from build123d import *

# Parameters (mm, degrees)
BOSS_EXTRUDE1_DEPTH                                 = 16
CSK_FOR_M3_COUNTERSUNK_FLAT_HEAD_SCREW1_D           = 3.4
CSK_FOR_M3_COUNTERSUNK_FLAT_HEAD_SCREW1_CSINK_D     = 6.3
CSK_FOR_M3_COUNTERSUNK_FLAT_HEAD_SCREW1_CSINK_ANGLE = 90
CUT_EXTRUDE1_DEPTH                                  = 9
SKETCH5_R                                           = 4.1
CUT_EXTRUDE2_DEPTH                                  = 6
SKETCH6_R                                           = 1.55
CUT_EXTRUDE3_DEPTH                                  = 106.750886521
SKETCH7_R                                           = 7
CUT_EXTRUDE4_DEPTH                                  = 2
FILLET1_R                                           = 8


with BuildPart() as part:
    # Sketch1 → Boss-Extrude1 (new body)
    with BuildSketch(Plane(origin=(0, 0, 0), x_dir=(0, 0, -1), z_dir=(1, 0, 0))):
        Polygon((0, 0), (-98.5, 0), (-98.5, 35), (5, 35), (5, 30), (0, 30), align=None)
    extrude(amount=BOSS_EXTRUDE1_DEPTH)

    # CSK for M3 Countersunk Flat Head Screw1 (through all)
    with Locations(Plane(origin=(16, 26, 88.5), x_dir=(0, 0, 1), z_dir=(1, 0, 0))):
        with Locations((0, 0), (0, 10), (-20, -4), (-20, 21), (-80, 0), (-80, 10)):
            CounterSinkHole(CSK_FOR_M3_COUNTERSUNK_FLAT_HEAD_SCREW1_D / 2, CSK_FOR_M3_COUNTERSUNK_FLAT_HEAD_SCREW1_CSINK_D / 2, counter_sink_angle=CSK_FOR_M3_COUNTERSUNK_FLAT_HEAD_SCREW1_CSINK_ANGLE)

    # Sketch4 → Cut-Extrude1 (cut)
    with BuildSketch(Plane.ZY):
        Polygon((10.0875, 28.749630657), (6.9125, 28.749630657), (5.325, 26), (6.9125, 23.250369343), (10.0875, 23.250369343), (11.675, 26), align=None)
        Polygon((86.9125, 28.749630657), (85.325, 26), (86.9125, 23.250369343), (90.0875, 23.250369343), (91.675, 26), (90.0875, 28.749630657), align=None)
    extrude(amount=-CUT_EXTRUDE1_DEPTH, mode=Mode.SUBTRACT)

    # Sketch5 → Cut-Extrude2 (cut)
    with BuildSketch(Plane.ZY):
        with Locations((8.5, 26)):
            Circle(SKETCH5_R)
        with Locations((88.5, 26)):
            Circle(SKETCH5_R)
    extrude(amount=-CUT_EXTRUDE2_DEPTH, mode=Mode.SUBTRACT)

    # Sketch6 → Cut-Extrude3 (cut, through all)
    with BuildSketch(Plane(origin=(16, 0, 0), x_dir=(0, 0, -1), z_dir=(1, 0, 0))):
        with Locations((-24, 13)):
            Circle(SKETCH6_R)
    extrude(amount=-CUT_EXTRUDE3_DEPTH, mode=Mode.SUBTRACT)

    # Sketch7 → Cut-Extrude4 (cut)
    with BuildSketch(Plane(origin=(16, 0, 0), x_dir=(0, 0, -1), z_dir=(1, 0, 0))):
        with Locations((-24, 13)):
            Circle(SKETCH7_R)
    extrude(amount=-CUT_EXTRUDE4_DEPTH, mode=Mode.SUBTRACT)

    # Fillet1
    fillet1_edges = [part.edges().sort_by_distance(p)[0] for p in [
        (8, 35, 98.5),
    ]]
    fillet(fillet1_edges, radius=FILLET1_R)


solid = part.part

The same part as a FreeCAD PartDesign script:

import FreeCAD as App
import Part
import Sketcher
from FreeCAD import Vector
Q = App.Units.Quantity


def edges_at(feature, points):
    """Names of the edges that pass closest to the given points."""
    edges = feature.Shape.Edges
    near = lambda p: min(range(len(edges)), key=lambda i: edges[i].distToShape(Part.Vertex(*p))[0])
    return sorted({f"Edge{near(p) + 1}" for p in points})


def add_polygon(sketch, points):
    """Adds a closed chain of lines whose ends are joined by coincident constraints."""
    first, n = sketch.GeometryCount, len(points)
    for a, b in zip(points, points[1:] + points[:1]):
        sketch.addGeometry(Part.LineSegment(App.Vector(*a, 0), App.Vector(*b, 0)), False)
    for i in range(n):
        sketch.addConstraint(Sketcher.Constraint("Coincident", first + i, 2, first + (i + 1) % n, 1))

doc = App.newDocument("Part")
body = doc.addObject("PartDesign::Body", "Body")

sketch1 = body.newObject("Sketcher::SketchObject", "Sketch")
sketch1.AttachmentSupport = (doc.getObject("YZ_Plane"), [""])
sketch1.MapMode = "FlatFace"
add_polygon(sketch1, [(0, 98), (0, 0), (30, 0), (30, -5), (35, -5), (35, 98)])
sketch1.addConstraint([
    Sketcher.Constraint("Vertical", 0),
    Sketcher.Constraint("Horizontal", 1),
    Sketcher.Constraint("Vertical", 2),
    Sketcher.Constraint("Horizontal", 3),
    Sketcher.Constraint("Vertical", 4),
    Sketcher.Constraint("Horizontal", 5),
    Sketcher.Constraint("Coincident", 0, 2, -1, 1),
    Sketcher.Constraint("Equal", 3, 2),
    Sketcher.Constraint("DistanceX", 1, 1, 1, 2, 30.0),
    Sketcher.Constraint("DistanceX", 3, 1, 3, 2, 5.0),
    Sketcher.Constraint("DistanceY", 0, 2, 0, 1, 98.5),
])
pad1 = body.newObject("PartDesign::Pad", "Pad")
pad1.Profile = sketch1
pad1.Length = 16

sketch2 = body.newObject("Sketcher::SketchObject", "Sketch001")
sketch2.AttachmentSupport = (doc.getObject("YZ_Plane"), [""])
sketch2.MapMode = "FlatFace"
sketch2.AttachmentOffset = App.Placement(Vector(0, 0, 16), App.Rotation())
sketch2.addGeometry([
    Part.Circle(Vector(26, 88.5, 0), Vector(0, 0, 1), 1.7),
    Part.Circle(Vector(16, 88.5, 0), Vector(0, 0, 1), 1.7),
    Part.Circle(Vector(30, 68.5, 0), Vector(0, 0, 1), 1.7),
    Part.Circle(Vector(5, 68.5, 0), Vector(0, 0, 1), 1.7),
    Part.Circle(Vector(26, 8.5, 0), Vector(0, 0, 1), 1.7),
    Part.Circle(Vector(16, 8.5, 0), Vector(0, 0, 1), 1.7),
], False)
sketch2.addConstraint([
    Sketcher.Constraint("Equal", 0, 1),
    Sketcher.Constraint("Equal", 1, 2),
    Sketcher.Constraint("Equal", 2, 3),
    Sketcher.Constraint("Equal", 3, 4),
    Sketcher.Constraint("Equal", 4, 5),
    Sketcher.Constraint("Horizontal", 0, 3, 1, 3),
    Sketcher.Constraint("Horizontal", 2, 3, 3, 3),
    Sketcher.Constraint("Horizontal", 4, 3, 5, 3),
    Sketcher.Constraint("Vertical", 0, 3, 4, 3),
    Sketcher.Constraint("Vertical", 1, 3, 5, 3),
    Sketcher.Constraint("Diameter", 0, 3.4),
    Sketcher.Constraint("DistanceX", -1, 1, 0, 3, 26.0),
    Sketcher.Constraint("DistanceX", -1, 1, 1, 3, 16.0),
    Sketcher.Constraint("DistanceX", -1, 1, 2, 3, 30.0),
    Sketcher.Constraint("DistanceX", -1, 1, 3, 3, 5.0),
    Sketcher.Constraint("DistanceY", 2, 3, 0, 3, 20.0),
    Sketcher.Constraint("DistanceY", 4, 3, 2, 3, 60.0),
    Sketcher.Constraint("DistanceY", -1, 1, 0, 3, 88.5),
])
doc.recompute()
hole = body.newObject("PartDesign::Hole", "Hole")
hole.Profile = sketch2
hole.ThreadType = "None"
hole.Diameter = 3.4
hole.DepthType = "ThroughAll"
hole.HoleCutType = "Countersink"
hole.HoleCutDiameter = 6.3
hole.HoleCutCountersinkAngle = 90

sketch3 = body.newObject("Sketcher::SketchObject", "Sketch002")
sketch3.AttachmentSupport = (doc.getObject("YZ_Plane"), [""])
sketch3.MapMode = "FlatFace"
add_polygon(sketch3, [(28.7, 10.1), (28.7, 6.9), (26, 5.3), (23.3, 6.9), (23.3, 10.1), (26, 11.7)])
add_polygon(sketch3, [(28.7, 86.9), (26, 85.3), (23.3, 86.9), (23.3, 90.1), (26, 91.7), (28.7, 90.1)])
sketch3.addConstraint([
    Sketcher.Constraint("Vertical", 0),
    Sketcher.Constraint("Vertical", 3),
    Sketcher.Constraint("Vertical", 8),
    Sketcher.Constraint("Vertical", 11),
    Sketcher.Constraint("Parallel", 1, 4),
    Sketcher.Constraint("Parallel", 2, 5),
    Sketcher.Constraint("Parallel", 4, 6),
    Sketcher.Constraint("Parallel", 5, 7),
    Sketcher.Constraint("Parallel", 6, 9),
    Sketcher.Constraint("Parallel", 7, 10),
    Sketcher.Constraint("Horizontal", 0, 2, 2, 2),
    Sketcher.Constraint("Horizontal", 3, 2, 5, 2),
    Sketcher.Constraint("Horizontal", 8, 2, 10, 2),
    Sketcher.Constraint("Horizontal", 7, 2, 11, 2),
    Sketcher.Constraint("Vertical", 1, 2, 4, 2),
    Sketcher.Constraint("Vertical", 4, 2, 6, 2),
    Sketcher.Constraint("Vertical", 3, 2, 7, 2),
    Sketcher.Constraint("Equal", 3, 8),
    Sketcher.Constraint("Angle", 1, Q("-150 deg")),
    Sketcher.Constraint("DistanceX", -1, 1, 1, 2, 26.0),
    Sketcher.Constraint("DistanceY", 2, 2, 7, 2, 80.0),
    Sketcher.Constraint("DistanceY", 0, 2, 0, 1, 3.175),
    Sketcher.Constraint("DistanceY", 1, 2, 4, 2, 6.35),
    Sketcher.Constraint("DistanceY", -1, 1, 1, 2, 5.325),
])
pocket1 = body.newObject("PartDesign::Pocket", "Pocket")
pocket1.Profile = sketch3
pocket1.Length = 9
pocket1.Reversed = True

sketch4 = body.newObject("Sketcher::SketchObject", "Sketch003")
sketch4.AttachmentSupport = (doc.getObject("YZ_Plane"), [""])
sketch4.MapMode = "FlatFace"
sketch4.addGeometry([
    Part.Circle(Vector(26, 8.5, 0), Vector(0, 0, 1), 4.1),
    Part.Circle(Vector(26, 88.5, 0), Vector(0, 0, 1), 4.1),
], False)
sketch4.addConstraint([
    Sketcher.Constraint("Equal", 0, 1),
    Sketcher.Constraint("Vertical", 0, 3, 1, 3),
    Sketcher.Constraint("Diameter", 0, 8.2),
    Sketcher.Constraint("DistanceX", -1, 1, 0, 3, 26.0),
    Sketcher.Constraint("DistanceY", 0, 3, 1, 3, 80.0),
    Sketcher.Constraint("DistanceY", -1, 1, 0, 3, 8.5),
])
pocket2 = body.newObject("PartDesign::Pocket", "Pocket001")
pocket2.Profile = sketch4
pocket2.Length = 6
pocket2.Reversed = True

sketch5 = body.newObject("Sketcher::SketchObject", "Sketch004")
sketch5.AttachmentSupport = (doc.getObject("YZ_Plane"), [""])
sketch5.MapMode = "FlatFace"
sketch5.AttachmentOffset = App.Placement(Vector(0, 0, 16), App.Rotation())
sketch5.addGeometry(Part.Circle(Vector(13, 24, 0), Vector(0, 0, 1), 1.6), False)
sketch5.addConstraint([
    Sketcher.Constraint("Diameter", 0, 3.1),
    Sketcher.Constraint("DistanceX", -1, 1, 0, 3, 13.0),
    Sketcher.Constraint("DistanceY", -1, 1, 0, 3, 24.0),
])
pocket3 = body.newObject("PartDesign::Pocket", "Pocket002")
pocket3.Profile = sketch5
pocket3.Type = "ThroughAll"

sketch6 = body.newObject("Sketcher::SketchObject", "Sketch005")
sketch6.AttachmentSupport = (doc.getObject("YZ_Plane"), [""])
sketch6.MapMode = "FlatFace"
sketch6.AttachmentOffset = App.Placement(Vector(0, 0, 16), App.Rotation())
sketch6.addGeometry(Part.Circle(Vector(13, 24, 0), Vector(0, 0, 1), 7), False)
sketch6.addConstraint([
    Sketcher.Constraint("Diameter", 0, 14.0),
    Sketcher.Constraint("DistanceX", -1, 1, 0, 3, 13.0),
    Sketcher.Constraint("DistanceY", -1, 1, 0, 3, 24.0),
])
pocket4 = body.newObject("PartDesign::Pocket", "Pocket003")
pocket4.Profile = sketch6
pocket4.Length = 2
doc.recompute()

fillet = body.newObject("PartDesign::Fillet", "Fillet")
fillet.Base = (pocket4, edges_at(pocket4, [(8, 35, 98.5)]))
fillet.Radius = 8

doc.recompute()
